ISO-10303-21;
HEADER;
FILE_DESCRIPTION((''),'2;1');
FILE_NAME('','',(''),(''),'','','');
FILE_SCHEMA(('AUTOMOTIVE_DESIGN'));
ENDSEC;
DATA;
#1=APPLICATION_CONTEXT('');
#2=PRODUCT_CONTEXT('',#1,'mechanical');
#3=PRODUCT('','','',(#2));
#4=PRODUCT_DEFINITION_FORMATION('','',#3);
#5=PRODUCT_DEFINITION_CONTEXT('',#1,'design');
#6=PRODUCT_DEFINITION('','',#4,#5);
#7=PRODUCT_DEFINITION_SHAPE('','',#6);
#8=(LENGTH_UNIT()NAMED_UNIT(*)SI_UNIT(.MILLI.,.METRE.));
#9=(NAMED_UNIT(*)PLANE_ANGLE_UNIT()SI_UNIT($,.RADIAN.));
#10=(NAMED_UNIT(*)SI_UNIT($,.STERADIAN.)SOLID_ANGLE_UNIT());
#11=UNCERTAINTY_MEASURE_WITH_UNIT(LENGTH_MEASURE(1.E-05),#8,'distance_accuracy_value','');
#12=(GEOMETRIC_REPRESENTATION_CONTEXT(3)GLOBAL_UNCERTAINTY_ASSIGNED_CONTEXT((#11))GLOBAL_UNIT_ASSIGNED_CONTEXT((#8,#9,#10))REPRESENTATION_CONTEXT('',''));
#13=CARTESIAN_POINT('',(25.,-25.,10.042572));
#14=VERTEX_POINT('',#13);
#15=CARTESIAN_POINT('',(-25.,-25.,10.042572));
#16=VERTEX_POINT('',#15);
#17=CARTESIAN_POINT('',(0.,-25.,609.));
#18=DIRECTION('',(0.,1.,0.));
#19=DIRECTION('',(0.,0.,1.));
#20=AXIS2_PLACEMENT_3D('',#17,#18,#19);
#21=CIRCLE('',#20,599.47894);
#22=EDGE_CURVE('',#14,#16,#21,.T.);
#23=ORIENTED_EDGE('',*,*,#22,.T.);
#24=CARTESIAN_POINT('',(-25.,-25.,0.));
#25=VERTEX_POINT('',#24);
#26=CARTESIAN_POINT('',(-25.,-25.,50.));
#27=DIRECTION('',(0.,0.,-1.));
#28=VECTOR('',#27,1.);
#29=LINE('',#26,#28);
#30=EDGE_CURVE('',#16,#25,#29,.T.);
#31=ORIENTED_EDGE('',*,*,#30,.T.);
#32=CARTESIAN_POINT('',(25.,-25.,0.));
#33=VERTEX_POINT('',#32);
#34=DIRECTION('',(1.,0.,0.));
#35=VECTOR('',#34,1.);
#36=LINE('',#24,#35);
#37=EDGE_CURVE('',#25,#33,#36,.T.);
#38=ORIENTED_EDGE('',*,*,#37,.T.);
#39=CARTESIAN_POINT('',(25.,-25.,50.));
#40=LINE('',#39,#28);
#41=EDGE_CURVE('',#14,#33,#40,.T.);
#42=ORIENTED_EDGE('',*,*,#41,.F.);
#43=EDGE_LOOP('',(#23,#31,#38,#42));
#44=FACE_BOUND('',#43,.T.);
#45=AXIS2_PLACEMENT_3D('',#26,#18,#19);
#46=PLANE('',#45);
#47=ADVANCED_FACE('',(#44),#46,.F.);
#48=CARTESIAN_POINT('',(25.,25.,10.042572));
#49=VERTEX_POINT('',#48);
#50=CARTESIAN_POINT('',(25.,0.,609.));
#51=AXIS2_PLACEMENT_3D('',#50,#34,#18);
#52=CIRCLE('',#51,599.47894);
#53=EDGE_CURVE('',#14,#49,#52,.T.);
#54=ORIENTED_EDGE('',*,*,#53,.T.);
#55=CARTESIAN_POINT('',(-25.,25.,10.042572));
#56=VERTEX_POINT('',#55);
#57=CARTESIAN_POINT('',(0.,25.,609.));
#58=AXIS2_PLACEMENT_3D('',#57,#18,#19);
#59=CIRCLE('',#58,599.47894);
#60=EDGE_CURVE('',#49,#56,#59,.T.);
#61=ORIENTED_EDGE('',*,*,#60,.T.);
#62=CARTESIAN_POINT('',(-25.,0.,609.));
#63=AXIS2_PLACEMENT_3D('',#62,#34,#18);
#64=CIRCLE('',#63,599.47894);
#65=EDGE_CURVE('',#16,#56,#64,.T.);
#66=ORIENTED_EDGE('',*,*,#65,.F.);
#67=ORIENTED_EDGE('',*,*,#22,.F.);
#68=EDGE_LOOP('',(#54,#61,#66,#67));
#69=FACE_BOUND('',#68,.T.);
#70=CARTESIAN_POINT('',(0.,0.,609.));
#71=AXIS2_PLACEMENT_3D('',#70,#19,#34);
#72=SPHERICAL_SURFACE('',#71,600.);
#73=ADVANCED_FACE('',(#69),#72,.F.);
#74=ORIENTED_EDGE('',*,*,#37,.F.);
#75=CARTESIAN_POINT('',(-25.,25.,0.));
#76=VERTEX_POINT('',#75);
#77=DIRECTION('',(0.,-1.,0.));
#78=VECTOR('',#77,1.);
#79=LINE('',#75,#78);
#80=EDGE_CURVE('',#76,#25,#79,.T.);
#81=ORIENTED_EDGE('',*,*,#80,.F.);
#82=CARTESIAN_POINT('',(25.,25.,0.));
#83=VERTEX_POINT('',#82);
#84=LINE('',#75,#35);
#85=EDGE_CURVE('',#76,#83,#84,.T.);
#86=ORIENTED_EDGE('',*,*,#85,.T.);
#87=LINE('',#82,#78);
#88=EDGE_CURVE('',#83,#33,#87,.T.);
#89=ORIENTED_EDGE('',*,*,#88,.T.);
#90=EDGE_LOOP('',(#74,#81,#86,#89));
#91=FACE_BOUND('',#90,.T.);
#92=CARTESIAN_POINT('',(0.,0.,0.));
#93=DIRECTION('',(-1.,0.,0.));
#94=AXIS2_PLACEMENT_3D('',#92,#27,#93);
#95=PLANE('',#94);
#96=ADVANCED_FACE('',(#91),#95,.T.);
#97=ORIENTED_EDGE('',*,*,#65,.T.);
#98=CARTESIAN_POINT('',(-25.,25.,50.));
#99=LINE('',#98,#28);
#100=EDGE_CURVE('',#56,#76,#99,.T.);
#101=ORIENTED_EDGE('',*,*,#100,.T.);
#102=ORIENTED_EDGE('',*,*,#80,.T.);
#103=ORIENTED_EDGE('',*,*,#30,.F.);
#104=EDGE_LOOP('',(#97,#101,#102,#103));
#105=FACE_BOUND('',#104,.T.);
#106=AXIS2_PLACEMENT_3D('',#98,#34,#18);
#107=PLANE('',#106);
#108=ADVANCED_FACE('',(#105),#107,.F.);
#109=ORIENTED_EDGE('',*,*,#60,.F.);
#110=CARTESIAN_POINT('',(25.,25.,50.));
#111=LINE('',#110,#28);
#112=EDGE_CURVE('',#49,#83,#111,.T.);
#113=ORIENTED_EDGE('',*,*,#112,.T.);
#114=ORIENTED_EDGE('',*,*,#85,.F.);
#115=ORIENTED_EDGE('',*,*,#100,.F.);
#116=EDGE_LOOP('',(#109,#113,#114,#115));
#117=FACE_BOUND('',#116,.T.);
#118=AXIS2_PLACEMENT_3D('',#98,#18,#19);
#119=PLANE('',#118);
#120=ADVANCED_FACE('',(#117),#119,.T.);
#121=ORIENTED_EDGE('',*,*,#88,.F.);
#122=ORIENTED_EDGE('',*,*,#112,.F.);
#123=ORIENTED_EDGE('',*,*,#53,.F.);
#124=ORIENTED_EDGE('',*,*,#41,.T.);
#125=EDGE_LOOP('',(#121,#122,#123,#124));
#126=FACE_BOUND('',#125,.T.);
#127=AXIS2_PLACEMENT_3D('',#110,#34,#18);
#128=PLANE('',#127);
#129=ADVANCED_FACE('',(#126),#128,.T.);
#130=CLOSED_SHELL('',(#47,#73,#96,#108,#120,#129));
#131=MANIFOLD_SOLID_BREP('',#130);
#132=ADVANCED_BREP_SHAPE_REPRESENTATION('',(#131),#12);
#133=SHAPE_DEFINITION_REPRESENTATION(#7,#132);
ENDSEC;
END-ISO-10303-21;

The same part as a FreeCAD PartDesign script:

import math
import FreeCAD as App
import Part
import Sketcher
Q = App.Units.Quantity


def add_polygon(sketch, points):
    """Adds a closed chain of lines whose ends are joined by coincident constraints."""
    first, n = sketch.GeometryCount, len(points)
    for a, b in zip(points, points[1:] + points[:1]):
        sketch.addGeometry(Part.LineSegment(App.Vector(*a, 0), App.Vector(*b, 0)), False)
    for i in range(n):
        sketch.addConstraint(Sketcher.Constraint("Coincident", first + i, 2, first + (i + 1) % n, 1))

doc = App.newDocument("Part")
body = doc.addObject("PartDesign::Body", "Body")

sketch1 = body.newObject("Sketcher::SketchObject", "Sketch")
sketch1.AttachmentSupport = (doc.getObject("XY_Plane"), [""])
sketch1.MapMode = "FlatFace"
add_polygon(sketch1, [(-25, 25), (-25, -25), (25, -25), (25, 25)])
sketch1.addConstraint(Sketcher.Constraint("Vertical", 0))
sketch1.addConstraint(Sketcher.Constraint("Horizontal", 1))
sketch1.addConstraint(Sketcher.Constraint("Vertical", 2))
sketch1.addConstraint(Sketcher.Constraint("Horizontal", 3))
sketch1.addConstraint(Sketcher.Constraint("Symmetric", 0, 2, 2, 2, -1, 1))
sketch1.addConstraint(Sketcher.Constraint("Equal", 3, 0))
sketch1.addConstraint(Sketcher.Constraint("DistanceX", 1, 1, 1, 2, Q("50 mm")))
pad1 = body.newObject("PartDesign::Pad", "Pad")
pad1.Profile = sketch1
pad1.Length = 50

sketch2 = body.newObject("Sketcher::SketchObject", "Sketch001")
sketch2.AttachmentSupport = (doc.getObject("XZ_Plane"), [""])
sketch2.MapMode = "FlatFace"
sketch2.addGeometry(Part.LineSegment(App.Vector(0, 475.270881, 0), App.Vector(584.907277, 475.270881, 0)), False)
sketch2.addGeometry(Part.ArcOfCircle(Part.Circle(App.Vector(0, 609, 0), App.Vector(0, 0, 1), 600), math.radians(-90), math.radians(-12.878355)), False)
sketch2.addGeometry(Part.LineSegment(App.Vector(0, 9, 0), App.Vector(0, 475.270881, 0)), False)
sketch2.addConstraint(Sketcher.Constraint("Coincident", 0, 2, 1, 2))
sketch2.addConstraint(Sketcher.Constraint("Coincident", 1, 1, 2, 1))
sketch2.addConstraint(Sketcher.Constraint("Coincident", 2, 2, 0, 1))
sketch2.addConstraint(Sketcher.Constraint("Horizontal", 0))
sketch2.addConstraint(Sketcher.Constraint("Vertical", 2))
sketch2.addConstraint(Sketcher.Constraint("PointOnObject", 1, 3, -2))
sketch2.addConstraint(Sketcher.Constraint("PointOnObject", 2, 2, -2))
sketch2.addConstraint(Sketcher.Constraint("Radius", 1, Q("600 mm")))
sketch2.addConstraint(Sketcher.Constraint("DistanceY", -1, 1, 1, 3, Q("609 mm")))
sketch2.addConstraint(Sketcher.Constraint("DistanceY", 2, 1, 2, 2, Q("466.270881 mm")))
groove = body.newObject("PartDesign::Groove", "Groove")
groove.Profile = sketch2
groove.ReferenceAxis = (sketch2, ["V_Axis"])
groove.Angle = 360

doc.recompute()
